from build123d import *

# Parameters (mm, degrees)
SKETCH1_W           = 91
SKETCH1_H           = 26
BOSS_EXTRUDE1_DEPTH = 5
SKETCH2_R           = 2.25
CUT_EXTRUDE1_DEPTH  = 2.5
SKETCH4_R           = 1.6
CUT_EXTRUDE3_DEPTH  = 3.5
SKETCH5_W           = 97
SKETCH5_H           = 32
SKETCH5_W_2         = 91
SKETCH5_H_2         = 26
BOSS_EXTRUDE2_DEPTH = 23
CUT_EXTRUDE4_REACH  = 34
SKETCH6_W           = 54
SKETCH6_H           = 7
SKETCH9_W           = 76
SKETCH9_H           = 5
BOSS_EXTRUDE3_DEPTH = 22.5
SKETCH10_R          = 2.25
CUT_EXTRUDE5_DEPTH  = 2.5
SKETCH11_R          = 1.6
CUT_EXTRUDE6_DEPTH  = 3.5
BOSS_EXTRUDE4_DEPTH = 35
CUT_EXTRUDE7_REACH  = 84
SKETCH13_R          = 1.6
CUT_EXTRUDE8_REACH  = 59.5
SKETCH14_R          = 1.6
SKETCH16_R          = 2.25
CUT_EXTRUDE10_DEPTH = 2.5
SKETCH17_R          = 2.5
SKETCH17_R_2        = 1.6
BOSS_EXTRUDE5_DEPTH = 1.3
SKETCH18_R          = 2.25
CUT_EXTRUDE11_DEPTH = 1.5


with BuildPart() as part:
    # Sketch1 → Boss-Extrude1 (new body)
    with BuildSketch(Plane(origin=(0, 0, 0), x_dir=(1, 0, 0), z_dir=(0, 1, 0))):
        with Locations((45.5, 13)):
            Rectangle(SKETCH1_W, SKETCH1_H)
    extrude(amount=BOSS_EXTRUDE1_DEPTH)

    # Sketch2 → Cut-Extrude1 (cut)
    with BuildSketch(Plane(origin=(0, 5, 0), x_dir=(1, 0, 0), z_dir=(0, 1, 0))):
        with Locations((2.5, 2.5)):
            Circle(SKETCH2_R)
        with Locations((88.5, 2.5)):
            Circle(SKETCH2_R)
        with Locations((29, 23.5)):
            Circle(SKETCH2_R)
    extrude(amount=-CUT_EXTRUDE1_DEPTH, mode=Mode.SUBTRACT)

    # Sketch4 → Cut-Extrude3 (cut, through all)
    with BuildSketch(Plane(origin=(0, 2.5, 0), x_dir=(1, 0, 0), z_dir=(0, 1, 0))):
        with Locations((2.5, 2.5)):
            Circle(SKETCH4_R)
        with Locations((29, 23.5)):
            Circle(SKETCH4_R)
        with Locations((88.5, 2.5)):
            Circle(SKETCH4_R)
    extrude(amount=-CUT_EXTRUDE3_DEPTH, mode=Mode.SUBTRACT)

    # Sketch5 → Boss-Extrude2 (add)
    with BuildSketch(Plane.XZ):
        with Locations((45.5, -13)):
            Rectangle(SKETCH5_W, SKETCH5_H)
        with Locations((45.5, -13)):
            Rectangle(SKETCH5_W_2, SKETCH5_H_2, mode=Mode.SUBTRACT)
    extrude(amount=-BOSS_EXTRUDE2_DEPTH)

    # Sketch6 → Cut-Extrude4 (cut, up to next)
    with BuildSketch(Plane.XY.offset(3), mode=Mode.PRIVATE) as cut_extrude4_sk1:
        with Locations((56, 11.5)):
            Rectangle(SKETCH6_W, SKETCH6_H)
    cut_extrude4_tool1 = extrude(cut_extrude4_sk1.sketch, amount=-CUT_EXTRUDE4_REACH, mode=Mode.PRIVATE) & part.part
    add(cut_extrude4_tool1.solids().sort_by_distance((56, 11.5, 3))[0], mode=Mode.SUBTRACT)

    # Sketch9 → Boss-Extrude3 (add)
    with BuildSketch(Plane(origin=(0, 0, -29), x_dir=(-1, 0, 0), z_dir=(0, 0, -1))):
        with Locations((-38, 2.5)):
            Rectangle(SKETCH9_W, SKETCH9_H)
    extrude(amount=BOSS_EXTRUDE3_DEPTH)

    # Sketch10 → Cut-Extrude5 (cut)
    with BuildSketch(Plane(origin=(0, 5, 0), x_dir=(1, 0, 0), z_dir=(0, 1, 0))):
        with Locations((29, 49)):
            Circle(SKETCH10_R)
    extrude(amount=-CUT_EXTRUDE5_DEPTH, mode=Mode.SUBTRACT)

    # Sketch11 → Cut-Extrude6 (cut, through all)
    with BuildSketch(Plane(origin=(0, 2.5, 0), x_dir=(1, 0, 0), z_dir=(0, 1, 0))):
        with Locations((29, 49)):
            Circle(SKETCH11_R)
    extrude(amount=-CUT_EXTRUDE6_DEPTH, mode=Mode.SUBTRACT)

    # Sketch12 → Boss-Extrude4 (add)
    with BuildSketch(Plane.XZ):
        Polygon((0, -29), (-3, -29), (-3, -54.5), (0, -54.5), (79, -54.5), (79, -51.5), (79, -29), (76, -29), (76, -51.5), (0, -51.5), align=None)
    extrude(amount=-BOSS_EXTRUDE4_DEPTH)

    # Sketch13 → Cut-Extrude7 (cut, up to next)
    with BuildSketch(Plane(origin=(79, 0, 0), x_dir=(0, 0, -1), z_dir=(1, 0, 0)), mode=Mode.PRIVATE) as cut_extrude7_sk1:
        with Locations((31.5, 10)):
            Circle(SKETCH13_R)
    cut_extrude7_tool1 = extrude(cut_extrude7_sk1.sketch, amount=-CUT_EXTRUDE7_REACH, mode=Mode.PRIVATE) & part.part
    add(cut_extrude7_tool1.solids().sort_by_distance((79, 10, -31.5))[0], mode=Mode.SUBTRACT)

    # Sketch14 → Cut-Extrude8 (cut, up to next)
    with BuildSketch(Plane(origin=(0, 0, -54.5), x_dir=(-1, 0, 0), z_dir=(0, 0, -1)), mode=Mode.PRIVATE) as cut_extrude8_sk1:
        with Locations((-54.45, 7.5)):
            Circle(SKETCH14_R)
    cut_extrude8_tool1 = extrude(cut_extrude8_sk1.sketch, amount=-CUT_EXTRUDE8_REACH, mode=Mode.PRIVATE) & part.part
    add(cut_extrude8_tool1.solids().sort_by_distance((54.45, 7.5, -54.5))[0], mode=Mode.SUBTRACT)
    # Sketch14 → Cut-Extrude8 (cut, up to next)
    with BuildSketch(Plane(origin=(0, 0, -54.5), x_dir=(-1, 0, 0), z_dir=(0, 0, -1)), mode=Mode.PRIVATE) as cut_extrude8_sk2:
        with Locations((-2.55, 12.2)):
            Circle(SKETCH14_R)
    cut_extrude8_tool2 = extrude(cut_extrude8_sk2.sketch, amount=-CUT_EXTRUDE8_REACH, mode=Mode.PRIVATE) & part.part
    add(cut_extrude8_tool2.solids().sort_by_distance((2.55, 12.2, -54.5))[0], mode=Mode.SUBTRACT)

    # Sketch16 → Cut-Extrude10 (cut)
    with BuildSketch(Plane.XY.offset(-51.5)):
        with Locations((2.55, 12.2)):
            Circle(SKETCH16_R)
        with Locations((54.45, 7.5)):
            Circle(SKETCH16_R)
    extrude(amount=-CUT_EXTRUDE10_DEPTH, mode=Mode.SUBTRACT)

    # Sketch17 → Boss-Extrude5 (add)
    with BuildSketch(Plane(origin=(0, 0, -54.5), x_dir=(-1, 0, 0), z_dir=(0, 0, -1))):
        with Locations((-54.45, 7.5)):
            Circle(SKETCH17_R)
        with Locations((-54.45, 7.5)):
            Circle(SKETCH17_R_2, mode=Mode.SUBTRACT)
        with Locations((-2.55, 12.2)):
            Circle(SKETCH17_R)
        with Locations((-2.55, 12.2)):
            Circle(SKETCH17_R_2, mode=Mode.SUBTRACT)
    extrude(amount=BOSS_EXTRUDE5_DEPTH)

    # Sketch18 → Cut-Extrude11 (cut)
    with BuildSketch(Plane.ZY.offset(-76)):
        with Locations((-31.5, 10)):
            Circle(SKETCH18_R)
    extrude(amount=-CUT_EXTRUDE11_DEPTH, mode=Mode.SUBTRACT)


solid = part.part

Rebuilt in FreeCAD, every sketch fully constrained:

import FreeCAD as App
import Part
import Sketcher

V = App.Vector
Q = App.Units.Quantity

doc = App.newDocument("Part")
params = doc.addObject("Spreadsheet::Sheet", "Params")
for row, (alias, value) in enumerate([
    ("sketch1_width", "91 mm"),
    ("sketch1_height", "26 mm"),
    ("pad1_length", "5 mm"),
    ("sketch2_diameter", "4.5 mm"),
    ("pocket1_length", "2.5 mm"),
    ("sketch3_diameter", "3.2 mm"),
    ("sketch4_width", "97 mm"),
    ("sketch4_width2", "91 mm"),
    ("sketch4_height", "32 mm"),
    ("sketch4_height2", "26 mm"),
    ("pad2_length", "23 mm"),
    ("sketch5_width", "54 mm"),
    ("sketch5_height", "7 mm"),
    ("sketch6_width", "76 mm"),
    ("sketch6_height", "5 mm"),
    ("pad3_length", "22.5 mm"),
    ("sketch7_diameter", "4.5 mm"),
    ("pocket4_length", "2.5 mm"),
    ("sketch8_diameter", "3.2 mm"),
    ("sketch9_width", "3 mm"),
    ("sketch9_width2", "82 mm"),
    ("sketch9_height", "25.5 mm"),
    ("sketch9_height2", "22.5 mm"),
    ("pad4_length", "35 mm"),
    ("sketch10_diameter", "3.2 mm"),
    ("sketch11_diameter", "3.2 mm"),
    ("sketch12_diameter", "3.2 mm"),
    ("sketch13_diameter", "4.5 mm"),
    ("pocket9_length", "2.5 mm"),
    ("sketch14_diameter", "5 mm"),
    ("sketch14_diameter2", "3.2 mm"),
    ("pad5_length", "1.3 mm"),
    ("sketch15_diameter", "4.5 mm"),
    ("pocket10_length", "1.5 mm"),
], start=1):
    params.set(f"A{row}", alias)
    params.set(f"B{row}", "=" + value)
    params.setAlias(f"B{row}", alias)

body = doc.addObject("PartDesign::Body", "Body")

# Sketch on XZ plane
sketch1 = body.newObject("Sketcher::SketchObject", "Sketch")
sketch1.AttachmentSupport = (doc.getObject("XZ_Plane"), [""])
sketch1.MapMode = "FlatFace"
sketch1.addGeometry([
    Part.LineSegment(V(0, -26, 0), V(0, 0, 0)),
    Part.LineSegment(V(0, 0, 0), V(91, 0, 0)),
    Part.LineSegment(V(91, 0, 0), V(91, -26, 0)),
    Part.LineSegment(V(91, -26, 0), V(0, -26, 0)),
], False)
sketch1.addConstraint([
    Sketcher.Constraint("Coincident", 0, 2, 1, 1),
    Sketcher.Constraint("Coincident", 1, 2, 2, 1),
    Sketcher.Constraint("Coincident", 2, 2, 3, 1),
    Sketcher.Constraint("Coincident", 3, 2, 0, 1),
    Sketcher.Constraint("Vertical", 0),
    Sketcher.Constraint("Horizontal", 1),
    Sketcher.Constraint("Vertical", 2),
    Sketcher.Constraint("Horizontal", 3),
    Sketcher.Constraint("Coincident", 0, 2, -1, 1),
    Sketcher.Constraint("DistanceX", 1, 1, 1, 2, Q("91 mm")),
    Sketcher.Constraint("DistanceY", 0, 1, 0, 2, Q("26 mm")),
])
sketch1.setExpression("Constraints[9]", "Params.sketch1_width")
sketch1.setExpression("Constraints[10]", "Params.sketch1_height")
pad1 = body.newObject("PartDesign::Pad", "Pad")
pad1.Profile = sketch1
pad1.setExpression("Length", "Params.pad1_length")
pad1.Reversed = True

# Sketch on XZ plane
sketch2 = body.newObject("Sketcher::SketchObject", "Sketch001")
sketch2.AttachmentSupport = (doc.getObject("XZ_Plane"), [""])
sketch2.MapMode = "FlatFace"
sketch2.AttachmentOffset = App.Placement(V(0, 0, -5), App.Rotation())
sketch2.addGeometry([
    Part.Circle(V(2.5, -2.5, 0), V(0, 0, 1), 2.2),
    Part.Circle(V(88.5, -2.5, 0), V(0, 0, 1), 2.2),
    Part.Circle(V(29, -23.5, 0), V(0, 0, 1), 2.2),
], False)
sketch2.addConstraint([
    Sketcher.Constraint("Equal", 0, 1),
    Sketcher.Constraint("Equal", 1, 2),
    Sketcher.Constraint("Horizontal", 0, 3, 1, 3),
    Sketcher.Constraint("Diameter", 0, Q("4.5 mm")),
    Sketcher.Constraint("DistanceX", -1, 1, 2, 3, Q("29 mm")),
    Sketcher.Constraint("DistanceX", 0, 3, 1, 3, Q("86 mm")),
    Sketcher.Constraint("DistanceY", 2, 3, 0, 3, Q("21 mm")),
    Sketcher.Constraint("DistanceX", -1, 1, 0, 3, Q("2.5 mm")),
    Sketcher.Constraint("DistanceY", 0, 3, -1, 1, Q("2.5 mm")),
])
sketch2.setExpression("Constraints[3]", "Params.sketch2_diameter")
pocket1 = body.newObject("PartDesign::Pocket", "Pocket")
pocket1.Profile = sketch2
pocket1.setExpression("Length", "Params.pocket1_length")
pocket1.Reversed = True

# Sketch on XZ plane
sketch3 = body.newObject("Sketcher::SketchObject", "Sketch002")
sketch3.AttachmentSupport = (doc.getObject("XZ_Plane"), [""])
sketch3.MapMode = "FlatFace"
sketch3.AttachmentOffset = App.Placement(V(0, 0, -2.5), App.Rotation())
sketch3.addGeometry([
    Part.Circle(V(2.5, -2.5, 0), V(0, 0, 1), 1.6),
    Part.Circle(V(29, -23.5, 0), V(0, 0, 1), 1.6),
    Part.Circle(V(88.5, -2.5, 0), V(0, 0, 1), 1.6),
], False)
sketch3.addConstraint([
    Sketcher.Constraint("Equal", 0, 1),
    Sketcher.Constraint("Equal", 1, 2),
    Sketcher.Constraint("Horizontal", 0, 3, 2, 3),
    Sketcher.Constraint("Diameter", 0, Q("3.2 mm")),
    Sketcher.Constraint("DistanceX", -1, 1, 1, 3, Q("29 mm")),
    Sketcher.Constraint("DistanceY", 1, 3, 0, 3, Q("21 mm")),
    Sketcher.Constraint("DistanceX", 0, 3, 2, 3, Q("86 mm")),
    Sketcher.Constraint("DistanceX", -1, 1, 0, 3, Q("2.5 mm")),
    Sketcher.Constraint("DistanceY", 0, 3, -1, 1, Q("2.5 mm")),
])
sketch3.setExpression("Constraints[3]", "Params.sketch3_diameter")
pocket2 = body.newObject("PartDesign::Pocket", "Pocket001")
pocket2.Profile = sketch3
pocket2.Type = "ThroughAll"
pocket2.Reversed = True

# Sketch on XZ plane
sketch4 = body.newObject("Sketcher::SketchObject", "Sketch003")
sketch4.AttachmentSupport = (doc.getObject("XZ_Plane"), [""])
sketch4.MapMode = "FlatFace"
sketch4.addGeometry([
    Part.LineSegment(V(-3, 3, 0), V(-3, -29, 0)),  # 0
    Part.LineSegment(V(-3, -29, 0), V(94, -29, 0)),  # 1
    Part.LineSegment(V(94, -29, 0), V(94, 3, 0)),  # 2
    Part.LineSegment(V(94, 3, 0), V(-3, 3, 0)),  # 3
    Part.LineSegment(V(91, -26, 0), V(0, -26, 0)),  # 4
    Part.LineSegment(V(0, -26, 0), V(0, 0, 0)),  # 5
    Part.LineSegment(V(0, 0, 0), V(91, 0, 0)),  # 6
    Part.LineSegment(V(91, 0, 0), V(91, -26, 0)),  # 7
], False)
sketch4.addConstraint([
    Sketcher.Constraint("Coincident", 0, 2, 1, 1),
    Sketcher.Constraint("Coincident", 1, 2, 2, 1),
    Sketcher.Constraint("Coincident", 2, 2, 3, 1),
    Sketcher.Constraint("Coincident", 3, 2, 0, 1),
    Sketcher.Constraint("Coincident", 4, 2, 5, 1),
    Sketcher.Constraint("Coincident", 5, 2, 6, 1),
    Sketcher.Constraint("Coincident", 6, 2, 7, 1),
    Sketcher.Constraint("Coincident", 7, 2, 4, 1),
    Sketcher.Constraint("Vertical", 0),
    Sketcher.Constraint("Horizontal", 1),
    Sketcher.Constraint("Vertical", 2),
    Sketcher.Constraint("Horizontal", 3),
    Sketcher.Constraint("Horizontal", 4),
    Sketcher.Constraint("Vertical", 5),
    Sketcher.Constraint("Horizontal", 6),
    Sketcher.Constraint("Vertical", 7),
    Sketcher.Constraint("Coincident", 5, 2, -1, 1),
    Sketcher.Constraint("DistanceX", 1, 1, 1, 2, Q("97 mm")),
    Sketcher.Constraint("DistanceX", 4, 2, 4, 1, Q("91 mm")),
    Sketcher.Constraint("DistanceY", 0, 2, 0, 1, Q("32 mm")),
    Sketcher.Constraint("DistanceY", 5, 1, 5, 2, Q("26 mm")),
    Sketcher.Constraint("DistanceX", 0, 2, -1, 1, Q("3 mm")),
    Sketcher.Constraint("DistanceY", 0, 2, -1, 1, Q("29 mm")),
])
sketch4.setExpression("Constraints[17]", "Params.sketch4_width")
sketch4.setExpression("Constraints[18]", "Params.sketch4_width2")
sketch4.setExpression("Constraints[19]", "Params.sketch4_height")
sketch4.setExpression("Constraints[20]", "Params.sketch4_height2")
pad2 = body.newObject("PartDesign::Pad", "Pad001")
pad2.Profile = sketch4
pad2.setExpression("Length", "Params.pad2_length")
pad2.Reversed = True

# Sketch on XY plane
sketch5 = body.newObject("Sketcher::SketchObject", "Sketch004")
sketch5.AttachmentSupport = (doc.getObject("XY_Plane"), [""])
sketch5.MapMode = "FlatFace"
sketch5.AttachmentOffset = App.Placement(V(0, 0, 3), App.Rotation())
sketch5.addGeometry([
    Part.LineSegment(V(29, 15, 0), V(29, 8, 0)),
    Part.LineSegment(V(29, 8, 0), V(83, 8, 0)),
    Part.LineSegment(V(83, 8, 0), V(83, 15, 0)),
    Part.LineSegment(V(83, 15, 0), V(29, 15, 0)),
], False)
sketch5.addConstraint([
    Sketcher.Constraint("Coincident", 0, 2, 1, 1),
    Sketcher.Constraint("Coincident", 1, 2, 2, 1),
    Sketcher.Constraint("Coincident", 2, 2, 3, 1),
    Sketcher.Constraint("Coincident", 3, 2, 0, 1),
    Sketcher.Constraint("Vertical", 0),
    Sketcher.Constraint("Horizontal", 1),
    Sketcher.Constraint("Vertical", 2),
    Sketcher.Constraint("Horizontal", 3),
    Sketcher.Constraint("DistanceX", 1, 1, 1, 2, Q("54 mm")),
    Sketcher.Constraint("DistanceY", 0, 2, 0, 1, Q("7 mm")),
    Sketcher.Constraint("DistanceX", -1, 1, 0, 2, Q("29 mm")),
    Sketcher.Constraint("DistanceY", -1, 1, 0, 2, Q("8 mm")),
])
sketch5.setExpression("Constraints[8]", "Params.sketch5_width")
sketch5.setExpression("Constraints[9]", "Params.sketch5_height")
pocket3 = body.newObject("PartDesign::Pocket", "Pocket002")
pocket3.Profile = sketch5
pocket3.Type = "UpToFirst"

# Sketch on XY plane
sketch6 = body.newObject("Sketcher::SketchObject", "Sketch005")
sketch6.AttachmentSupport = (doc.getObject("XY_Plane"), [""])
sketch6.MapMode = "FlatFace"
sketch6.AttachmentOffset = App.Placement(V(0, 0, -29), App.Rotation())
sketch6.addGeometry([
    Part.LineSegment(V(76, 5, 0), V(76, 0, 0)),
    Part.LineSegment(V(76, 0, 0), V(0, 0, 0)),
    Part.LineSegment(V(0, 0, 0), V(0, 5, 0)),
    Part.LineSegment(V(0, 5, 0), V(76, 5, 0)),
], False)
sketch6.addConstraint([
    Sketcher.Constraint("Coincident", 0, 2, 1, 1),
    Sketcher.Constraint("Coincident", 1, 2, 2, 1),
    Sketcher.Constraint("Coincident", 2, 2, 3, 1),
    Sketcher.Constraint("Coincident", 3, 2, 0, 1),
    Sketcher.Constraint("Vertical", 0),
    Sketcher.Constraint("Horizontal", 1),
    Sketcher.Constraint("Vertical", 2),
    Sketcher.Constraint("Horizontal", 3),
    Sketcher.Constraint("Coincident", 1, 2, -1, 1),
    Sketcher.Constraint("DistanceX", 1, 2, 1, 1, Q("76 mm")),
    Sketcher.Constraint("DistanceY", 0, 2, 0, 1, Q("5 mm")),
])
sketch6.setExpression("Constraints[9]", "Params.sketch6_width")
sketch6.setExpression("Constraints[10]", "Params.sketch6_height")
pad3 = body.newObject("PartDesign::Pad", "Pad002")
pad3.Profile = sketch6
pad3.setExpression("Length", "Params.pad3_length")
pad3.Reversed = True

# Sketch on XZ plane
sketch7 = body.newObject("Sketcher::SketchObject", "Sketch006")
sketch7.AttachmentSupport = (doc.getObject("XZ_Plane"), [""])
sketch7.MapMode = "FlatFace"
sketch7.AttachmentOffset = App.Placement(V(0, 0, -5), App.Rotation())
sketch7.addGeometry(Part.Circle(V(29, -49, 0), V(0, 0, 1), 2.2), False)
sketch7.addConstraint([
    Sketcher.Constraint("Diameter", 0, Q("4.5 mm")),
    Sketcher.Constraint("DistanceX", -1, 1, 0, 3, Q("29 mm")),
    Sketcher.Constraint("DistanceY", 0, 3, -1, 1, Q("49 mm")),
])
sketch7.setExpression("Constraints[0]", "Params.sketch7_diameter")
pocket4 = body.newObject("PartDesign::Pocket", "Pocket003")
pocket4.Profile = sketch7
pocket4.setExpression("Length", "Params.pocket4_length")
pocket4.Reversed = True

# Sketch on XZ plane
sketch8 = body.newObject("Sketcher::SketchObject", "Sketch007")
sketch8.AttachmentSupport = (doc.getObject("XZ_Plane"), [""])
sketch8.MapMode = "FlatFace"
sketch8.AttachmentOffset = App.Placement(V(0, 0, -2.5), App.Rotation())
sketch8.addGeometry(Part.Circle(V(29, -49, 0), V(0, 0, 1), 1.6), False)
sketch8.addConstraint([
    Sketcher.Constraint("Diameter", 0, Q("3.2 mm")),
    Sketcher.Constraint("DistanceX", -1, 1, 0, 3, Q("29 mm")),
    Sketcher.Constraint("DistanceY", 0, 3, -1, 1, Q("49 mm")),
])
sketch8.setExpression("Constraints[0]", "Params.sketch8_diameter")
pocket5 = body.newObject("PartDesign::Pocket", "Pocket004")
pocket5.Profile = sketch8
pocket5.Type = "ThroughAll"
pocket5.Reversed = True

# Sketch on XZ plane
sketch9 = body.newObject("Sketcher::SketchObject", "Sketch008")
sketch9.AttachmentSupport = (doc.getObject("XZ_Plane"), [""])
sketch9.MapMode = "FlatFace"
sketch9.addGeometry([
    Part.LineSegment(V(0, -29, 0), V(-3, -29, 0)),  # 0
    Part.LineSegment(V(-3, -29, 0), V(-3, -54.5, 0)),  # 1
    Part.LineSegment(V(-3, -54.5, 0), V(79, -54.5, 0)),  # 2
    Part.LineSegment(V(79, -54.5, 0), V(79, -29, 0)),  # 3
    Part.LineSegment(V(79, -29, 0), V(76, -29, 0)),  # 4
    Part.LineSegment(V(76, -29, 0), V(76, -51.5, 0)),  # 5
    Part.LineSegment(V(76, -51.5, 0), V(0, -51.5, 0)),  # 6
    Part.LineSegment(V(0, -51.5, 0), V(0, -29, 0)),  # 7
], False)
sketch9.addConstraint([
    Sketcher.Constraint("Coincident", 0, 2, 1, 1),
    Sketcher.Constraint("Coincident", 1, 2, 2, 1),
    Sketcher.Constraint("Coincident", 2, 2, 3, 1),
    Sketcher.Constraint("Coincident", 3, 2, 4, 1),
    Sketcher.Constraint("Coincident", 4, 2, 5, 1),
    Sketcher.Constraint("Coincident", 5, 2, 6, 1),
    Sketcher.Constraint("Coincident", 6, 2, 7, 1),
    Sketcher.Constraint("Coincident", 7, 2, 0, 1),
    Sketcher.Constraint("Horizontal", 0),
    Sketcher.Constraint("Vertical", 1),
    Sketcher.Constraint("Horizontal", 2),
    Sketcher.Constraint("Vertical", 3),
    Sketcher.Constraint("Horizontal", 4),
    Sketcher.Constraint("Vertical", 5),
    Sketcher.Constraint("Horizontal", 6),
    Sketcher.Constraint("Vertical", 7),
    Sketcher.Constraint("PointOnObject", 6, 2, -2),
    Sketcher.Constraint("Horizontal", 0, 2, 3, 2),
    Sketcher.Constraint("Equal", 0, 4),
    Sketcher.Constraint("DistanceX", 0, 2, 0, 1, Q("3 mm")),
    Sketcher.Constraint("DistanceX", 2, 1, 2, 2, Q("82 mm")),
    Sketcher.Constraint("DistanceY", 1, 2, 1, 1, Q("25.5 mm")),
    Sketcher.Constraint("DistanceY", 5, 2, 5, 1, Q("22.5 mm")),
    Sketcher.Constraint("DistanceY", 0, 2, -1, 1, Q("29 mm")),
])
sketch9.setExpression("Constraints[19]", "Params.sketch9_width")
sketch9.setExpression("Constraints[20]", "Params.sketch9_width2")
sketch9.setExpression("Constraints[21]", "Params.sketch9_height")
sketch9.setExpression("Constraints[22]", "Params.sketch9_height2")
pad4 = body.newObject("PartDesign::Pad", "Pad003")
pad4.Profile = sketch9
pad4.setExpression("Length", "Params.pad4_length")
pad4.Reversed = True

# Sketch on YZ plane
sketch10 = body.newObject("Sketcher::SketchObject", "Sketch009")
sketch10.AttachmentSupport = (doc.getObject("YZ_Plane"), [""])
sketch10.MapMode = "FlatFace"
sketch10.AttachmentOffset = App.Placement(V(0, 0, 79), App.Rotation())
sketch10.addGeometry(Part.Circle(V(10, -31.5, 0), V(0, 0, 1), 1.6), False)
sketch10.addConstraint([
    Sketcher.Constraint("Diameter", 0, Q("3.2 mm")),
    Sketcher.Constraint("DistanceX", -1, 1, 0, 3, Q("10 mm")),
    Sketcher.Constraint("DistanceY", 0, 3, -1, 1, Q("31.5 mm")),
])
sketch10.setExpression("Constraints[0]", "Params.sketch10_diameter")
pocket6 = body.newObject("PartDesign::Pocket", "Pocket005")
pocket6.Profile = sketch10
pocket6.Type = "UpToFirst"

# Sketch on XY plane
sketch11 = body.newObject("Sketcher::SketchObject", "Sketch010")
sketch11.AttachmentSupport = (doc.getObject("XY_Plane"), [""])
sketch11.MapMode = "FlatFace"
sketch11.AttachmentOffset = App.Placement(V(0, 0, -54.5), App.Rotation())
sketch11.addGeometry(Part.Circle(V(54.5, 7.5, 0), V(0, 0, 1), 1.6), False)
sketch11.addConstraint([
    Sketcher.Constraint("Diameter", 0, Q("3.2 mm")),
    Sketcher.Constraint("DistanceY", -1, 1, 0, 3, Q("7.5 mm")),
    Sketcher.Constraint("DistanceX", -1, 1, 0, 3, Q("54.45 mm")),
])
sketch11.setExpression("Constraints[0]", "Params.sketch11_diameter")
pocket7 = body.newObject("PartDesign::Pocket", "Pocket006")
pocket7.Profile = sketch11
pocket7.Type = "UpToFirst"
pocket7.Reversed = True

# Sketch on XY plane
sketch12 = body.newObject("Sketcher::SketchObject", "Sketch011")
sketch12.AttachmentSupport = (doc.getObject("XY_Plane"), [""])
sketch12.MapMode = "FlatFace"
sketch12.AttachmentOffset = App.Placement(V(0, 0, -54.5), App.Rotation())
sketch12.addGeometry(Part.Circle(V(2.5, 12.2, 0), V(0, 0, 1), 1.6), False)
sketch12.addConstraint([
    Sketcher.Constraint("Diameter", 0, Q("3.2 mm")),
    Sketcher.Constraint("DistanceY", -1, 1, 0, 3, Q("12.2 mm")),
    Sketcher.Constraint("DistanceX", -1, 1, 0, 3, Q("2.55 mm")),
])
sketch12.setExpression("Constraints[0]", "Params.sketch12_diameter")
pocket8 = body.newObject("PartDesign::Pocket", "Pocket007")
pocket8.Profile = sketch12
pocket8.Type = "UpToFirst"
pocket8.Reversed = True

# Sketch on XY plane
sketch13 = body.newObject("Sketcher::SketchObject", "Sketch012")
sketch13.AttachmentSupport = (doc.getObject("XY_Plane"), [""])
sketch13.MapMode = "FlatFace"
sketch13.AttachmentOffset = App.Placement(V(0, 0, -51.5), App.Rotation())
sketch13.addGeometry([
    Part.Circle(V(2.5, 12.2, 0), V(0, 0, 1), 2.2),
    Part.Circle(V(54.5, 7.5, 0), V(0, 0, 1), 2.2),
], False)
sketch13.addConstraint([
    Sketcher.Constraint("Equal", 0, 1),
    Sketcher.Constraint("Diameter", 0, Q("4.5 mm")),
    Sketcher.Constraint("DistanceY", -1, 1, 0, 3, Q("12.2 mm")),
    Sketcher.Constraint("DistanceY", -1, 1, 1, 3, Q("7.5 mm")),
    Sketcher.Constraint("DistanceX", 0, 3, 1, 3, Q("51.9 mm")),
    Sketcher.Constraint("DistanceX", -1, 1, 0, 3, Q("2.55 mm")),
])
sketch13.setExpression("Constraints[1]", "Params.sketch13_diameter")
pocket9 = body.newObject("PartDesign::Pocket", "Pocket008")
pocket9.Profile = sketch13
pocket9.setExpression("Length", "Params.pocket9_length")

# Sketch on XY plane
sketch14 = body.newObject("Sketcher::SketchObject", "Sketch013")
sketch14.AttachmentSupport = (doc.getObject("XY_Plane"), [""])
sketch14.MapMode = "FlatFace"
sketch14.AttachmentOffset = App.Placement(V(0, 0, -54.5), App.Rotation())
sketch14.addGeometry([
    Part.Circle(V(54.5, 7.5, 0), V(0, 0, 1), 2.5),
    Part.Circle(V(54.5, 7.5, 0), V(0, 0, 1), 1.6),
    Part.Circle(V(2.5, 12.2, 0), V(0, 0, 1), 2.5),
    Part.Circle(V(2.5, 12.2, 0), V(0, 0, 1), 1.6),
], False)
sketch14.addConstraint([
    Sketcher.Constraint("Coincident", 1, 3, 0, 3),
    Sketcher.Constraint("Coincident", 3, 3, 2, 3),
    Sketcher.Constraint("Equal", 0, 2),
    Sketcher.Constraint("Equal", 1, 3),
    Sketcher.Constraint("Diameter", 0, Q("5 mm")),
    Sketcher.Constraint("Diameter", 1, Q("3.2 mm")),
    Sketcher.Constraint("DistanceY", -1, 1, 0, 3, Q("7.5 mm")),
    Sketcher.Constraint("DistanceY", -1, 1, 2, 3, Q("12.2 mm")),
    Sketcher.Constraint("DistanceX", 2, 3, 0, 3, Q("51.9 mm")),
    Sketcher.Constraint("DistanceX", -1, 1, 0, 3, Q("54.45 mm")),
])
sketch14.setExpression("Constraints[4]", "Params.sketch14_diameter")
sketch14.setExpression("Constraints[5]", "Params.sketch14_diameter2")
pad5 = body.newObject("PartDesign::Pad", "Pad004")
pad5.Profile = sketch14
pad5.setExpression("Length", "Params.pad5_length")
pad5.Reversed = True

# Sketch on YZ plane
sketch15 = body.newObject("Sketcher::SketchObject", "Sketch014")
sketch15.AttachmentSupport = (doc.getObject("YZ_Plane"), [""])
sketch15.MapMode = "FlatFace"
sketch15.AttachmentOffset = App.Placement(V(0, 0, 76), App.Rotation())
sketch15.addGeometry(Part.Circle(V(10, -31.5, 0), V(0, 0, 1), 2.2), False)
sketch15.addConstraint([
    Sketcher.Constraint("Diameter", 0, Q("4.5 mm")),
    Sketcher.Constraint("DistanceX", -1, 1, 0, 3, Q("10 mm")),
    Sketcher.Constraint("DistanceY", 0, 3, -1, 1, Q("31.5 mm")),
])
sketch15.setExpression("Constraints[0]", "Params.sketch15_diameter")
pocket10 = body.newObject("PartDesign::Pocket", "Pocket009")
pocket10.Profile = sketch15
pocket10.setExpression("Length", "Params.pocket10_length")
pocket10.Reversed = True

doc.recompute()
